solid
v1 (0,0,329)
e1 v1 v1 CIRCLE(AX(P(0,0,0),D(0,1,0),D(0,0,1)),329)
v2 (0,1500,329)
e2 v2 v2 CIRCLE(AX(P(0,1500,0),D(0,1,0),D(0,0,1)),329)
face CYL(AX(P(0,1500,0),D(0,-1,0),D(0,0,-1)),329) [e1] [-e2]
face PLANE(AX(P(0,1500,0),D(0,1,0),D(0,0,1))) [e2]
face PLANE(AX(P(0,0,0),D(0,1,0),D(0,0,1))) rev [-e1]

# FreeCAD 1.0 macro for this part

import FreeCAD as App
import Part
import Sketcher

doc = App.newDocument("Part")
params = doc.addObject("Spreadsheet::Sheet", "Params")
for row, (alias, value) in enumerate([
    ("sketch1_diameter", "658 mm"),
    ("pad1_length", "1500 mm"),
], start=1):
    params.set(f"A{row}", alias)
    params.set(f"B{row}", "=" + value)
    params.setAlias(f"B{row}", alias)

body = doc.addObject("PartDesign::Body", "Body")

# Sketch on XZ plane
sketch1 = body.newObject("Sketcher::SketchObject", "Sketch")
sketch1.AttachmentSupport = (doc.getObject("XZ_Plane"), [""])
sketch1.MapMode = "FlatFace"
sketch1.addGeometry(Part.Circle(App.Vector(0, 0, 0), App.Vector(0, 0, 1), 329), False)
sketch1.addConstraint(Sketcher.Constraint("Coincident", 0, 3, -1, 1))
sketch1.addConstraint(Sketcher.Constraint("Diameter", 0, 658.0))
sketch1.setExpression("Constraints[1]", "Params.sketch1_diameter")
pad1 = body.newObject("PartDesign::Pad", "Pad")
pad1.Profile = sketch1
pad1.setExpression("Length", "Params.pad1_length")
pad1.Reversed = True

doc.recompute()
